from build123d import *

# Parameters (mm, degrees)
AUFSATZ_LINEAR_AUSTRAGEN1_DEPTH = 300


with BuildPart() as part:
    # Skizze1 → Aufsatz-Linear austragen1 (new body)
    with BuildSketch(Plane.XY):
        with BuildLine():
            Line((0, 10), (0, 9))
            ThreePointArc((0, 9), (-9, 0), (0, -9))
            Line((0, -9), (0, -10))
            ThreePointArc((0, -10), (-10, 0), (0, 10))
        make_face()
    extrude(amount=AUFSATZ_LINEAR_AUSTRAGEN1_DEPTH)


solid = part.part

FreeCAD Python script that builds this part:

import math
import FreeCAD as App
import Part
import Sketcher

doc = App.newDocument("Part")
body = doc.addObject("PartDesign::Body", "Body")

sketch1 = doc.addObject("Sketcher::SketchObject", "Sketch")
body.addObject(sketch1)
sketch1.AttachmentSupport = (doc.XY_Plane, [""])
sketch1.MapMode = "FlatFace"
sketch1.addGeometry([
    Part.LineSegment(App.Vector(0, 9, 0), App.Vector(0, 10, 0)),
    Part.ArcOfCircle(Part.Circle(App.Vector(0, 0, 0), App.Vector(0, 0, 1), 10), math.radians(90), math.radians(270)),
    Part.LineSegment(App.Vector(0, -10, 0), App.Vector(0, -9, 0)),
    Part.ArcOfCircle(Part.Circle(App.Vector(0, 0, 0), App.Vector(0, 0, 1), 9), math.radians(90), math.radians(270)),
], False)
sketch1.addConstraint([
    Sketcher.Constraint("Coincident", 0, 2, 1, 1),
    Sketcher.Constraint("Coincident", 1, 2, 2, 1),
    Sketcher.Constraint("Coincident", 2, 2, 3, 2),
    Sketcher.Constraint("Coincident", 3, 1, 0, 1),
    Sketcher.Constraint("Vertical", 0),
    Sketcher.Constraint("Vertical", 2),
    Sketcher.Constraint("Coincident", 1, 3, -1, 1),
    Sketcher.Constraint("Coincident", 3, 3, -1, 1),
    Sketcher.Constraint("PointOnObject", 0, 2, -2),
    Sketcher.Constraint("PointOnObject", 1, 2, -2),
    Sketcher.Constraint("Radius", 1, 10.0),
    Sketcher.Constraint("Radius", 3, 9.0),
])
pad1 = doc.addObject("PartDesign::Pad", "Pad")
body.addObject(pad1)
pad1.Profile = sketch1
pad1.Length = 300

doc.recompute()
